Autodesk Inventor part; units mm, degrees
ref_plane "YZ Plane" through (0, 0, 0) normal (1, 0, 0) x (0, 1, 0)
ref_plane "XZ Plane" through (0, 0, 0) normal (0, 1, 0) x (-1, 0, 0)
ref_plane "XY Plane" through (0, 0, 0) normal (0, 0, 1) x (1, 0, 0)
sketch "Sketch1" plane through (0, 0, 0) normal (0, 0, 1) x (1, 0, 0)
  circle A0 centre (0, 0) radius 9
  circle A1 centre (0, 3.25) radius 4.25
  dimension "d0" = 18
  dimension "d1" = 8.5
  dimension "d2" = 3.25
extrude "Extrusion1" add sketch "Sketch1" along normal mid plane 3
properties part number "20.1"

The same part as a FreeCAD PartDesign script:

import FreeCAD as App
import Part
import Sketcher
from FreeCAD import Vector

doc = App.newDocument("Part")
body = doc.addObject("PartDesign::Body", "Body")

sketch1 = body.newObject("Sketcher::SketchObject", "Sketch")
sketch1.AttachmentSupport = (doc.getObject("XY_Plane"), [""])
sketch1.MapMode = "FlatFace"
sketch1.addGeometry(Part.Circle(Vector(0, 0, 0), Vector(0, 0, 1), 9), False)
sketch1.addGeometry(Part.Circle(Vector(0, 3.2, 0), Vector(0, 0, 1), 4.2), False)
sketch1.addConstraint(Sketcher.Constraint("Coincident", 0, 3, -1, 1))
sketch1.addConstraint(Sketcher.Constraint("PointOnObject", 1, 3, -2))
sketch1.addConstraint(Sketcher.Constraint("Diameter", 0, 18.0))
sketch1.addConstraint(Sketcher.Constraint("Diameter", 1, 8.5))
sketch1.addConstraint(Sketcher.Constraint("DistanceY", -1, 1, 1, 3, 3.25))
pad1 = body.newObject("PartDesign::Pad", "Pad")
pad1.Profile = sketch1
pad1.Length = 3
pad1.Midplane = True

doc.recompute()
